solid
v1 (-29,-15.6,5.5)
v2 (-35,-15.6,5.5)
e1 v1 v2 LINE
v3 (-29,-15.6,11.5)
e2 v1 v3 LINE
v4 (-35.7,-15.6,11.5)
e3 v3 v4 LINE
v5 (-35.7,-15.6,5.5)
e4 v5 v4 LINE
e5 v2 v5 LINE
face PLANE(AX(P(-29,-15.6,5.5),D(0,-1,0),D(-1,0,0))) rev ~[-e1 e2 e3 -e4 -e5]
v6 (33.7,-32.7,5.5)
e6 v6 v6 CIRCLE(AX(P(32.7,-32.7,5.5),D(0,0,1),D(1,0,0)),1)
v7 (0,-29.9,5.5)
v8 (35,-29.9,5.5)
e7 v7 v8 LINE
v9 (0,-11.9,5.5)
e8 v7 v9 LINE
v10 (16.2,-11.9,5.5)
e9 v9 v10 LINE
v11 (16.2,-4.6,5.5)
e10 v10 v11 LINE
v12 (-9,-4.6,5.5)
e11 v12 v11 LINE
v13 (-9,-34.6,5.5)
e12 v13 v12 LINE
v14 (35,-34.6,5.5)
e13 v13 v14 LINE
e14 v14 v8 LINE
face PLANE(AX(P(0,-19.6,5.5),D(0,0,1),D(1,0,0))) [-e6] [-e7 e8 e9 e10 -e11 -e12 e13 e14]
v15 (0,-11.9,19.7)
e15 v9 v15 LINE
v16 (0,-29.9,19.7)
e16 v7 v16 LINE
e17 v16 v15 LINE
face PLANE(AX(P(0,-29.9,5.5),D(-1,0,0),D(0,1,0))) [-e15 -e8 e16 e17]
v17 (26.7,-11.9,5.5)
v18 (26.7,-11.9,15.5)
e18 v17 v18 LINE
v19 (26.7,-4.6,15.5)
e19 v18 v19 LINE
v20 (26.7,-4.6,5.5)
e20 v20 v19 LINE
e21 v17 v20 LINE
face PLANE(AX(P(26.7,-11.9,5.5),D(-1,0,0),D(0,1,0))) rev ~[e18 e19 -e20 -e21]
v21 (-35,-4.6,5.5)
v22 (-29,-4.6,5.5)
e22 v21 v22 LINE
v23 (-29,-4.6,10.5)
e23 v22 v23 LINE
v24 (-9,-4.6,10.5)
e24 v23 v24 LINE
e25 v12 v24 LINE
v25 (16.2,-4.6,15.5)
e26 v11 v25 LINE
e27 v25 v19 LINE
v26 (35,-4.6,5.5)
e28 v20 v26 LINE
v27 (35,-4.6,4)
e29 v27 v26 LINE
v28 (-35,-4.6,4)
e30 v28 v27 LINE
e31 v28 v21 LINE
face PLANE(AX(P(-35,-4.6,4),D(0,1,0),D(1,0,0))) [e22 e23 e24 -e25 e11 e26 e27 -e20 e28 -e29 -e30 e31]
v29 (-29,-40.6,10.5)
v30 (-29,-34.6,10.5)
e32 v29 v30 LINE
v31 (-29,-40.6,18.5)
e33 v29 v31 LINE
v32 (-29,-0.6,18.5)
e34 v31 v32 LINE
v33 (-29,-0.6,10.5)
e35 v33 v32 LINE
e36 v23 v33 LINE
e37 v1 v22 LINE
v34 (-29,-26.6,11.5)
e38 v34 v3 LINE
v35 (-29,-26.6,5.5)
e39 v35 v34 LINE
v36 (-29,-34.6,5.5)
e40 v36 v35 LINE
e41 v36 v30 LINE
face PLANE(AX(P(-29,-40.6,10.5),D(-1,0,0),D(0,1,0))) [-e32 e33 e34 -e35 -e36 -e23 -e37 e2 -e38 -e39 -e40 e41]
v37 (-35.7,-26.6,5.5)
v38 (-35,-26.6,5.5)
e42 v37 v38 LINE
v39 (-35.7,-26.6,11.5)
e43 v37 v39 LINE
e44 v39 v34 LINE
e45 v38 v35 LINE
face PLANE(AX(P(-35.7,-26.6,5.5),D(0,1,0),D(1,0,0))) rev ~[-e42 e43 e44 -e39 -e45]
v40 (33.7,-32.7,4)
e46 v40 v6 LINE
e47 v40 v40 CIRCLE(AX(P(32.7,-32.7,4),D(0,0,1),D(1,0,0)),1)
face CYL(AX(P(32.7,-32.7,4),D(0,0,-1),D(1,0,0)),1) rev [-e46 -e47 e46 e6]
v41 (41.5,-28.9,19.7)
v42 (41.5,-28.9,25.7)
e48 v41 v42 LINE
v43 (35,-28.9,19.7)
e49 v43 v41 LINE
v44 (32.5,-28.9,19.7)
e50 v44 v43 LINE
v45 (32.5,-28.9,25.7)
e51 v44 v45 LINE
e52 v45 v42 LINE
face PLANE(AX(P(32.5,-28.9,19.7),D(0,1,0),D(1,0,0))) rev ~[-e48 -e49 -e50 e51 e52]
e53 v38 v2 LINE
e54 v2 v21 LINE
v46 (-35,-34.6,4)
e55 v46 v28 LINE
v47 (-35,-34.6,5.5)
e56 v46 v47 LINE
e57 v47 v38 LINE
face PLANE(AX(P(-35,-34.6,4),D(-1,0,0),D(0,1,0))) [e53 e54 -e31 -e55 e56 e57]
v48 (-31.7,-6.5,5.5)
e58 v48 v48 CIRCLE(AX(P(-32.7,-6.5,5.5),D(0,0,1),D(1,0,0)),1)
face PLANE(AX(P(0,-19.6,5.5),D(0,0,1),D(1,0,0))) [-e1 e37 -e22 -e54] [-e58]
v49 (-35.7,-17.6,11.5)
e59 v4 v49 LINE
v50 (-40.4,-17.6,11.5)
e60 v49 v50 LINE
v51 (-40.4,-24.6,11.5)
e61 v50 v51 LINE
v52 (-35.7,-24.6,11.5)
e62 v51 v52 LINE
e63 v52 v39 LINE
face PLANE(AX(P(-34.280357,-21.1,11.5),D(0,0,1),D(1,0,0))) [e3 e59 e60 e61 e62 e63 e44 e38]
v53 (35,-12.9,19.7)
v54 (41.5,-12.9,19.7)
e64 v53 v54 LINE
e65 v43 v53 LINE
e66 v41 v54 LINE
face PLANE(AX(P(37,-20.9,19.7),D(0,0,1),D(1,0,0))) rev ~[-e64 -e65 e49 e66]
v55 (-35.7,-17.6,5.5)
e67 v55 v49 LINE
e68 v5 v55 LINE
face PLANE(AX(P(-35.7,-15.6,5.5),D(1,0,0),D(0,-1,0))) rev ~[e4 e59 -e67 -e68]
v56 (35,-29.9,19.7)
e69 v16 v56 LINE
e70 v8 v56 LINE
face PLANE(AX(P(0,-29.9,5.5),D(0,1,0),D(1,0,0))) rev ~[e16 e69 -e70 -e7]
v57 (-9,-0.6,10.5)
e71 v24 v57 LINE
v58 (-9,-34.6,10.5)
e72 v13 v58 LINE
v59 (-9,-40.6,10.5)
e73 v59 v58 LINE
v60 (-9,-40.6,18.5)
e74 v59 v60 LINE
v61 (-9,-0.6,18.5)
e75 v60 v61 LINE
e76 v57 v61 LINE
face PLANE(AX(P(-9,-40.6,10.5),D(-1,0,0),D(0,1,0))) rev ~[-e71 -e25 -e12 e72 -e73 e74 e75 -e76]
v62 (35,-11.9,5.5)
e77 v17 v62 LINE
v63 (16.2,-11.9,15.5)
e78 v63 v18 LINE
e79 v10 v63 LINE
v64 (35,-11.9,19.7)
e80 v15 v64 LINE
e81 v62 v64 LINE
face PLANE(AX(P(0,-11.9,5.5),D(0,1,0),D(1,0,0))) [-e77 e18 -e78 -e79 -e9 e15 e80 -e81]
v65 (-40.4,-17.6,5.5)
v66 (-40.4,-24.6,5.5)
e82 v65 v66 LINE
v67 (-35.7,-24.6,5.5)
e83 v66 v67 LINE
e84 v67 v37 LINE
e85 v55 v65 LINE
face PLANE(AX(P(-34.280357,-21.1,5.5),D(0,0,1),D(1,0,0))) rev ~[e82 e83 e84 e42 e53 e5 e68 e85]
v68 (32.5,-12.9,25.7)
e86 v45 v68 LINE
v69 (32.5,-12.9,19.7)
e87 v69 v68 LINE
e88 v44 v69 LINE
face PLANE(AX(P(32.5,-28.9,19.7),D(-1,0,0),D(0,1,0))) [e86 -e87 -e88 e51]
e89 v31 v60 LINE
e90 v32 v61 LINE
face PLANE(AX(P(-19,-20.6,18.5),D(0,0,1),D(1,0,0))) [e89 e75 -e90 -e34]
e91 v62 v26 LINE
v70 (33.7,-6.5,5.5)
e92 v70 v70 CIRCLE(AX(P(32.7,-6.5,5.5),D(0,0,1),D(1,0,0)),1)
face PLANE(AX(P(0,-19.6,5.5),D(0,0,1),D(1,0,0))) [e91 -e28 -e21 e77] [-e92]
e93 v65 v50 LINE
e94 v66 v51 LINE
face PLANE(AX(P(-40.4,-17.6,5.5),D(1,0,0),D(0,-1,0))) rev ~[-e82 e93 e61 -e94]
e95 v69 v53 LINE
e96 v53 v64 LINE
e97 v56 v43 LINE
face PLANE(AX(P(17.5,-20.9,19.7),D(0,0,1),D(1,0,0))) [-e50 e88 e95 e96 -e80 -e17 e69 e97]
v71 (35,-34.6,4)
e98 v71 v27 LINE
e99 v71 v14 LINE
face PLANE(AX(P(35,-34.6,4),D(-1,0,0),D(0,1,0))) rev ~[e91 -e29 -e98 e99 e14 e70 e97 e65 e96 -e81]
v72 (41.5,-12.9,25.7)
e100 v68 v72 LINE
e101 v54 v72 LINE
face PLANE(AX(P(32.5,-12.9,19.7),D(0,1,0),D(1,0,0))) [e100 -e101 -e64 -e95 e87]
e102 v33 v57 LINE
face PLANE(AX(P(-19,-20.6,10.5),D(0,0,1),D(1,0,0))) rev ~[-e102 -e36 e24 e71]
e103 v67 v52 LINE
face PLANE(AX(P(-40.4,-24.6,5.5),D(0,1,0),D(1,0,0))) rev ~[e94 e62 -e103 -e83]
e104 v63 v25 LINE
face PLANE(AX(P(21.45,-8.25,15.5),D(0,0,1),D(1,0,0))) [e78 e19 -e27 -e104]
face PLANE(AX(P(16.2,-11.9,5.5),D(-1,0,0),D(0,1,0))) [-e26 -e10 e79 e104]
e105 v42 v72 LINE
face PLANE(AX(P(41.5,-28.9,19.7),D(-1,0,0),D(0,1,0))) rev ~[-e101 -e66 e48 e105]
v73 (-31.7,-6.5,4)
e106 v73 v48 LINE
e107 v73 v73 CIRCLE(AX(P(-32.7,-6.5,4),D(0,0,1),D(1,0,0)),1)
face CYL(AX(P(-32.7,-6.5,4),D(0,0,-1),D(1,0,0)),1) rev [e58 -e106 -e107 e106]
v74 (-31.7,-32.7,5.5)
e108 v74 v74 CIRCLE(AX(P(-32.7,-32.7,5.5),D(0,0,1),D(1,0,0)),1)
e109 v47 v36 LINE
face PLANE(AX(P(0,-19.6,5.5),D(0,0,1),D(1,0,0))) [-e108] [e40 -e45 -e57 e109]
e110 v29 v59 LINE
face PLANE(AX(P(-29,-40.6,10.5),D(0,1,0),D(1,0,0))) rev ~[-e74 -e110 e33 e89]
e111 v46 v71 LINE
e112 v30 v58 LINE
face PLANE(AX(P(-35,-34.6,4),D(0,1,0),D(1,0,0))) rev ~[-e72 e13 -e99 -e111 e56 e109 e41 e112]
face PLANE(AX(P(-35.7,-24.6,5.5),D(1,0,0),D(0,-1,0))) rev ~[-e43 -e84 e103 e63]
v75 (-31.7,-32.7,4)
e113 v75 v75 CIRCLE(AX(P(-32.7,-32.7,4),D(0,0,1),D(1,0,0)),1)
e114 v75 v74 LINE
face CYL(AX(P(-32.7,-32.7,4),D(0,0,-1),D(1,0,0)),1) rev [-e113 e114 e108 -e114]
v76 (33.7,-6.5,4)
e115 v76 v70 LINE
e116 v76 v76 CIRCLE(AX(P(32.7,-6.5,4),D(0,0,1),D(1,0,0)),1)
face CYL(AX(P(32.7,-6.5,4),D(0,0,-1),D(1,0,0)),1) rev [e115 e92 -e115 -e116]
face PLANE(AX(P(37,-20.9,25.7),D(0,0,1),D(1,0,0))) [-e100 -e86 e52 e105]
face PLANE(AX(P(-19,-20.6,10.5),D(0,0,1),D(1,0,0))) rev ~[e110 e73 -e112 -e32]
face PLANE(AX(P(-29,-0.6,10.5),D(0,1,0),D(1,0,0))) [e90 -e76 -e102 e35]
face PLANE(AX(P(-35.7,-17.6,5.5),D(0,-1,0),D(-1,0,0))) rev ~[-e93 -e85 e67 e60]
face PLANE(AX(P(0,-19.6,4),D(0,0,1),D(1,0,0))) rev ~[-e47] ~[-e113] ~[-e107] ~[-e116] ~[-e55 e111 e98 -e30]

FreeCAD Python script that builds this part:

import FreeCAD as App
import Part
import Sketcher

V = App.Vector

doc = App.newDocument("Part")
body = doc.addObject("PartDesign::Body", "Body")

# Sketch on XY plane
sketch1 = doc.addObject("Sketcher::SketchObject", "Sketch")
body.addObject(sketch1)
sketch1.AttachmentSupport = (doc.XY_Plane, [""])
sketch1.MapMode = "FlatFace"
sketch1.addGeometry([
    Part.LineSegment(V(-35, 15, 0), V(-35, -15, 0)),  # 0
    Part.LineSegment(V(-35, -15, 0), V(35, -15, 0)),  # 1
    Part.LineSegment(V(35, -15, 0), V(35, 15, 0)),  # 2
    Part.LineSegment(V(35, 15, 0), V(-35, 15, 0)),  # 3
    Part.Circle(V(-32.7, -13.1, 0), V(0, 0, 1), 1),  # 4
    Part.Circle(V(32.7, -13.1, 0), V(0, 0, 1), 1),  # 5
    Part.Circle(V(-32.7, 13.1, 0), V(0, 0, 1), 1),  # 6
    Part.Circle(V(32.7, 13.1, 0), V(0, 0, 1), 1),  # 7
], False)
sketch1.addConstraint([
    Sketcher.Constraint("Coincident", 0, 2, 1, 1),
    Sketcher.Constraint("Coincident", 1, 2, 2, 1),
    Sketcher.Constraint("Coincident", 2, 2, 3, 1),
    Sketcher.Constraint("Coincident", 3, 2, 0, 1),
    Sketcher.Constraint("Vertical", 0),
    Sketcher.Constraint("Horizontal", 1),
    Sketcher.Constraint("Vertical", 2),
    Sketcher.Constraint("Horizontal", 3),
    Sketcher.Constraint("Equal", 4, 5),
    Sketcher.Constraint("Equal", 5, 6),
    Sketcher.Constraint("Equal", 6, 7),
    Sketcher.Constraint("Symmetric", 5, 3, 6, 3, -1, 1),
    Sketcher.Constraint("Symmetric", 4, 3, 7, 3, -1, 1),
    Sketcher.Constraint("Symmetric", 0, 2, 2, 2, -1, 1),
    Sketcher.Constraint("Symmetric", 4, 3, 5, 3, -2),
    Sketcher.Constraint("Diameter", 4, 2.0),
    Sketcher.Constraint("DistanceX", 1, 1, 1, 2, 70.0),
    Sketcher.Constraint("DistanceY", 0, 2, 0, 1, 30.0),
    Sketcher.Constraint("DistanceX", 4, 3, -1, 1, 32.7),
    Sketcher.Constraint("DistanceY", 4, 3, -1, 1, 13.1),
])
pad1 = doc.addObject("PartDesign::Pad", "Pad")
body.addObject(pad1)
pad1.Profile = sketch1
pad1.Length = 1.5

# Sketch on XY plane
sketch2 = doc.addObject("Sketcher::SketchObject", "Sketch001")
body.addObject(sketch2)
sketch2.AttachmentSupport = (doc.XY_Plane, [""])
sketch2.MapMode = "FlatFace"
sketch2.AttachmentOffset = App.Placement(V(0, 0, 1.5), App.Rotation())
sketch2.addGeometry([
    Part.LineSegment(V(-29, 15, 0), V(-29, -15, 0)),
    Part.LineSegment(V(-29, -15, 0), V(-9, -15, 0)),
    Part.LineSegment(V(-9, -15, 0), V(-9, 15, 0)),
    Part.LineSegment(V(-9, 15, 0), V(-29, 15, 0)),
], False)
sketch2.addConstraint([
    Sketcher.Constraint("Coincident", 0, 2, 1, 1),
    Sketcher.Constraint("Coincident", 1, 2, 2, 1),
    Sketcher.Constraint("Coincident", 2, 2, 3, 1),
    Sketcher.Constraint("Coincident", 3, 2, 0, 1),
    Sketcher.Constraint("Vertical", 0),
    Sketcher.Constraint("Horizontal", 1),
    Sketcher.Constraint("Vertical", 2),
    Sketcher.Constraint("Horizontal", 3),
    Sketcher.Constraint("DistanceX", 1, 1, 1, 2, 20.0),
    Sketcher.Constraint("DistanceY", 0, 2, 0, 1, 30.0),
    Sketcher.Constraint("DistanceX", 0, 2, -1, 1, 29.0),
    Sketcher.Constraint("DistanceY", 0, 2, -1, 1, 15.0),
])
pad2 = doc.addObject("PartDesign::Pad", "Pad001")
body.addObject(pad2)
pad2.Profile = sketch2
pad2.Length = 5

# Sketch on XY plane
sketch3 = doc.addObject("Sketcher::SketchObject", "Sketch002")
body.addObject(sketch3)
sketch3.AttachmentSupport = (doc.XY_Plane, [""])
sketch3.MapMode = "FlatFace"
sketch3.AttachmentOffset = App.Placement(V(0, 0, 6.5), App.Rotation())
sketch3.addGeometry([
    Part.LineSegment(V(-29, 19, 0), V(-29, -21, 0)),
    Part.LineSegment(V(-29, -21, 0), V(-9, -21, 0)),
    Part.LineSegment(V(-9, -21, 0), V(-9, 19, 0)),
    Part.LineSegment(V(-9, 19, 0), V(-29, 19, 0)),
], False)
sketch3.addConstraint([
    Sketcher.Constraint("Coincident", 0, 2, 1, 1),
    Sketcher.Constraint("Coincident", 1, 2, 2, 1),
    Sketcher.Constraint("Coincident", 2, 2, 3, 1),
    Sketcher.Constraint("Coincident", 3, 2, 0, 1),
    Sketcher.Constraint("Vertical", 0),
    Sketcher.Constraint("Horizontal", 1),
    Sketcher.Constraint("Vertical", 2),
    Sketcher.Constraint("Horizontal", 3),
    Sketcher.Constraint("DistanceX", 1, 1, 1, 2, 20.0),
    Sketcher.Constraint("DistanceY", 0, 2, 0, 1, 40.0),
    Sketcher.Constraint("DistanceX", 0, 2, -1, 1, 29.0),
    Sketcher.Constraint("DistanceY", 0, 2, -1, 1, 21.0),
])
pad3 = doc.addObject("PartDesign::Pad", "Pad002")
body.addObject(pad3)
pad3.Profile = sketch3
pad3.Length = 8

# Sketch on XY plane
sketch4 = doc.addObject("Sketcher::SketchObject", "Sketch003")
body.addObject(sketch4)
sketch4.AttachmentSupport = (doc.XY_Plane, [""])
sketch4.MapMode = "FlatFace"
sketch4.AttachmentOffset = App.Placement(V(0, 0, 1.5), App.Rotation())
sketch4.addGeometry([
    Part.LineSegment(V(0, 7.7, 0), V(0, -10.3, 0)),
    Part.LineSegment(V(0, -10.3, 0), V(35, -10.3, 0)),
    Part.LineSegment(V(35, -10.3, 0), V(35, 7.7, 0)),
    Part.LineSegment(V(35, 7.7, 0), V(0, 7.7, 0)),
], False)
sketch4.addConstraint([
    Sketcher.Constraint("Coincident", 0, 2, 1, 1),
    Sketcher.Constraint("Coincident", 1, 2, 2, 1),
    Sketcher.Constraint("Coincident", 2, 2, 3, 1),
    Sketcher.Constraint("Coincident", 3, 2, 0, 1),
    Sketcher.Constraint("Vertical", 0),
    Sketcher.Constraint("Horizontal", 1),
    Sketcher.Constraint("Vertical", 2),
    Sketcher.Constraint("Horizontal", 3),
    Sketcher.Constraint("PointOnObject", 0, 2, -2),
    Sketcher.Constraint("DistanceX", 1, 1, 1, 2, 35.0),
    Sketcher.Constraint("DistanceY", 0, 2, 0, 1, 18.0),
    Sketcher.Constraint("DistanceY", 0, 2, -1, 1, 10.3),
])
pad4 = doc.addObject("PartDesign::Pad", "Pad003")
body.addObject(pad4)
pad4.Profile = sketch4
pad4.Length = 14.2

# Sketch on XY plane
sketch5 = doc.addObject("Sketcher::SketchObject", "Sketch004")
body.addObject(sketch5)
sketch5.AttachmentSupport = (doc.XY_Plane, [""])
sketch5.MapMode = "FlatFace"
sketch5.AttachmentOffset = App.Placement(V(0, 0, 15.7), App.Rotation())
sketch5.addGeometry([
    Part.LineSegment(V(32.5, 6.7, 0), V(32.5, -9.3, 0)),
    Part.LineSegment(V(32.5, -9.3, 0), V(41.5, -9.3, 0)),
    Part.LineSegment(V(41.5, -9.3, 0), V(41.5, 6.7, 0)),
    Part.LineSegment(V(41.5, 6.7, 0), V(32.5, 6.7, 0)),
], False)
sketch5.addConstraint([
    Sketcher.Constraint("Coincident", 0, 2, 1, 1),
    Sketcher.Constraint("Coincident", 1, 2, 2, 1),
    Sketcher.Constraint("Coincident", 2, 2, 3, 1),
    Sketcher.Constraint("Coincident", 3, 2, 0, 1),
    Sketcher.Constraint("Vertical", 0),
    Sketcher.Constraint("Horizontal", 1),
    Sketcher.Constraint("Vertical", 2),
    Sketcher.Constraint("Horizontal", 3),
    Sketcher.Constraint("DistanceX", 1, 1, 1, 2, 9.0),
    Sketcher.Constraint("DistanceY", 0, 2, 0, 1, 16.0),
    Sketcher.Constraint("DistanceX", -1, 1, 0, 2, 32.5),
    Sketcher.Constraint("DistanceY", 0, 2, -1, 1, 9.3),
])
pad5 = doc.addObject("PartDesign::Pad", "Pad004")
body.addObject(pad5)
pad5.Profile = sketch5
pad5.Length = 6

# Sketch on XY plane
sketch6 = doc.addObject("Sketcher::SketchObject", "Sketch005")
body.addObject(sketch6)
sketch6.AttachmentSupport = (doc.XY_Plane, [""])
sketch6.MapMode = "FlatFace"
sketch6.AttachmentOffset = App.Placement(V(0, 0, 1.5), App.Rotation())
sketch6.addGeometry([
    Part.LineSegment(V(16.2, 15, 0), V(16.2, 7.7, 0)),
    Part.LineSegment(V(16.2, 7.7, 0), V(26.7, 7.7, 0)),
    Part.LineSegment(V(26.7, 7.7, 0), V(26.7, 15, 0)),
    Part.LineSegment(V(26.7, 15, 0), V(16.2, 15, 0)),
], False)
sketch6.addConstraint([
    Sketcher.Constraint("Coincident", 0, 2, 1, 1),
    Sketcher.Constraint("Coincident", 1, 2, 2, 1),
    Sketcher.Constraint("Coincident", 2, 2, 3, 1),
    Sketcher.Constraint("Coincident", 3, 2, 0, 1),
    Sketcher.Constraint("Vertical", 0),
    Sketcher.Constraint("Horizontal", 1),
    Sketcher.Constraint("Vertical", 2),
    Sketcher.Constraint("Horizontal", 3),
    Sketcher.Constraint("DistanceX", 1, 1, 1, 2, 10.5),
    Sketcher.Constraint("DistanceY", 0, 2, 0, 1, 7.3),
    Sketcher.Constraint("DistanceY", -1, 1, 2, 2, 15.0),
    Sketcher.Constraint("DistanceX", -1, 1, 0, 2, 16.2),
])
pad6 = doc.addObject("PartDesign::Pad", "Pad005")
body.addObject(pad6)
pad6.Profile = sketch6
pad6.Length = 10

# Sketch on XY plane
sketch7 = doc.addObject("Sketcher::SketchObject", "Sketch006")
body.addObject(sketch7)
sketch7.AttachmentSupport = (doc.XY_Plane, [""])
sketch7.MapMode = "FlatFace"
sketch7.AttachmentOffset = App.Placement(V(0, 0, 1.5), App.Rotation())
sketch7.addGeometry([
    Part.LineSegment(V(-29, 4, 0), V(-35.7, 4, 0)),  # 0
    Part.LineSegment(V(-35.7, 4, 0), V(-35.7, 2, 0)),  # 1
    Part.LineSegment(V(-35.7, 2, 0), V(-40.4, 2, 0)),  # 2
    Part.LineSegment(V(-40.4, 2, 0), V(-40.4, -5, 0)),  # 3
    Part.LineSegment(V(-40.4, -5, 0), V(-35.7, -5, 0)),  # 4
    Part.LineSegment(V(-35.7, -5, 0), V(-35.7, -7, 0)),  # 5
    Part.LineSegment(V(-35.7, -7, 0), V(-29, -7, 0)),  # 6
    Part.LineSegment(V(-29, -7, 0), V(-29, 4, 0)),  # 7
], False)
sketch7.addConstraint([
    Sketcher.Constraint("Coincident", 0, 2, 1, 1),
    Sketcher.Constraint("Coincident", 1, 2, 2, 1),
    Sketcher.Constraint("Coincident", 2, 2, 3, 1),
    Sketcher.Constraint("Coincident", 3, 2, 4, 1),
    Sketcher.Constraint("Coincident", 4, 2, 5, 1),
    Sketcher.Constraint("Coincident", 5, 2, 6, 1),
    Sketcher.Constraint("Coincident", 6, 2, 7, 1),
    Sketcher.Constraint("Coincident", 7, 2, 0, 1),
    Sketcher.Constraint("Horizontal", 0),
    Sketcher.Constraint("Vertical", 1),
    Sketcher.Constraint("Horizontal", 2),
    Sketcher.Constraint("Vertical", 3),
    Sketcher.Constraint("Horizontal", 4),
    Sketcher.Constraint("Vertical", 5),
    Sketcher.Constraint("Horizontal", 6),
    Sketcher.Constraint("Vertical", 7),
    Sketcher.Constraint("Vertical", 1, 2, 4, 2),
    Sketcher.Constraint("Equal", 1, 5),
    Sketcher.Constraint("DistanceY", 1, 2, 1, 1, 2.0),
    Sketcher.Constraint("DistanceY", 3, 2, 3, 1, 7.0),
    Sketcher.Constraint("DistanceX", 0, 2, 0, 1, 6.7),
    Sketcher.Constraint("DistanceX", 2, 2, 2, 1, 4.7),
    Sketcher.Constraint("DistanceY", -1, 1, 0, 2, 4.0),
    Sketcher.Constraint("DistanceX", 6, 2, -1, 1, 29.0),
])
pad7 = doc.addObject("PartDesign::Pad", "Pad006")
body.addObject(pad7)
pad7.Profile = sketch7
pad7.Length = 6
body2 = doc.addObject("PartDesign::Body", "Body001")
doc.recompute()

body.Placement = App.Placement(V(0, -19.6, 4), App.Rotation(V(0, 0, 1), 0))
boolean = doc.addObject("PartDesign::Boolean", "Boolean")
body2.addObject(boolean)
boolean.Type = "Fuse"
boolean.addObjects([body])

doc.recompute()
